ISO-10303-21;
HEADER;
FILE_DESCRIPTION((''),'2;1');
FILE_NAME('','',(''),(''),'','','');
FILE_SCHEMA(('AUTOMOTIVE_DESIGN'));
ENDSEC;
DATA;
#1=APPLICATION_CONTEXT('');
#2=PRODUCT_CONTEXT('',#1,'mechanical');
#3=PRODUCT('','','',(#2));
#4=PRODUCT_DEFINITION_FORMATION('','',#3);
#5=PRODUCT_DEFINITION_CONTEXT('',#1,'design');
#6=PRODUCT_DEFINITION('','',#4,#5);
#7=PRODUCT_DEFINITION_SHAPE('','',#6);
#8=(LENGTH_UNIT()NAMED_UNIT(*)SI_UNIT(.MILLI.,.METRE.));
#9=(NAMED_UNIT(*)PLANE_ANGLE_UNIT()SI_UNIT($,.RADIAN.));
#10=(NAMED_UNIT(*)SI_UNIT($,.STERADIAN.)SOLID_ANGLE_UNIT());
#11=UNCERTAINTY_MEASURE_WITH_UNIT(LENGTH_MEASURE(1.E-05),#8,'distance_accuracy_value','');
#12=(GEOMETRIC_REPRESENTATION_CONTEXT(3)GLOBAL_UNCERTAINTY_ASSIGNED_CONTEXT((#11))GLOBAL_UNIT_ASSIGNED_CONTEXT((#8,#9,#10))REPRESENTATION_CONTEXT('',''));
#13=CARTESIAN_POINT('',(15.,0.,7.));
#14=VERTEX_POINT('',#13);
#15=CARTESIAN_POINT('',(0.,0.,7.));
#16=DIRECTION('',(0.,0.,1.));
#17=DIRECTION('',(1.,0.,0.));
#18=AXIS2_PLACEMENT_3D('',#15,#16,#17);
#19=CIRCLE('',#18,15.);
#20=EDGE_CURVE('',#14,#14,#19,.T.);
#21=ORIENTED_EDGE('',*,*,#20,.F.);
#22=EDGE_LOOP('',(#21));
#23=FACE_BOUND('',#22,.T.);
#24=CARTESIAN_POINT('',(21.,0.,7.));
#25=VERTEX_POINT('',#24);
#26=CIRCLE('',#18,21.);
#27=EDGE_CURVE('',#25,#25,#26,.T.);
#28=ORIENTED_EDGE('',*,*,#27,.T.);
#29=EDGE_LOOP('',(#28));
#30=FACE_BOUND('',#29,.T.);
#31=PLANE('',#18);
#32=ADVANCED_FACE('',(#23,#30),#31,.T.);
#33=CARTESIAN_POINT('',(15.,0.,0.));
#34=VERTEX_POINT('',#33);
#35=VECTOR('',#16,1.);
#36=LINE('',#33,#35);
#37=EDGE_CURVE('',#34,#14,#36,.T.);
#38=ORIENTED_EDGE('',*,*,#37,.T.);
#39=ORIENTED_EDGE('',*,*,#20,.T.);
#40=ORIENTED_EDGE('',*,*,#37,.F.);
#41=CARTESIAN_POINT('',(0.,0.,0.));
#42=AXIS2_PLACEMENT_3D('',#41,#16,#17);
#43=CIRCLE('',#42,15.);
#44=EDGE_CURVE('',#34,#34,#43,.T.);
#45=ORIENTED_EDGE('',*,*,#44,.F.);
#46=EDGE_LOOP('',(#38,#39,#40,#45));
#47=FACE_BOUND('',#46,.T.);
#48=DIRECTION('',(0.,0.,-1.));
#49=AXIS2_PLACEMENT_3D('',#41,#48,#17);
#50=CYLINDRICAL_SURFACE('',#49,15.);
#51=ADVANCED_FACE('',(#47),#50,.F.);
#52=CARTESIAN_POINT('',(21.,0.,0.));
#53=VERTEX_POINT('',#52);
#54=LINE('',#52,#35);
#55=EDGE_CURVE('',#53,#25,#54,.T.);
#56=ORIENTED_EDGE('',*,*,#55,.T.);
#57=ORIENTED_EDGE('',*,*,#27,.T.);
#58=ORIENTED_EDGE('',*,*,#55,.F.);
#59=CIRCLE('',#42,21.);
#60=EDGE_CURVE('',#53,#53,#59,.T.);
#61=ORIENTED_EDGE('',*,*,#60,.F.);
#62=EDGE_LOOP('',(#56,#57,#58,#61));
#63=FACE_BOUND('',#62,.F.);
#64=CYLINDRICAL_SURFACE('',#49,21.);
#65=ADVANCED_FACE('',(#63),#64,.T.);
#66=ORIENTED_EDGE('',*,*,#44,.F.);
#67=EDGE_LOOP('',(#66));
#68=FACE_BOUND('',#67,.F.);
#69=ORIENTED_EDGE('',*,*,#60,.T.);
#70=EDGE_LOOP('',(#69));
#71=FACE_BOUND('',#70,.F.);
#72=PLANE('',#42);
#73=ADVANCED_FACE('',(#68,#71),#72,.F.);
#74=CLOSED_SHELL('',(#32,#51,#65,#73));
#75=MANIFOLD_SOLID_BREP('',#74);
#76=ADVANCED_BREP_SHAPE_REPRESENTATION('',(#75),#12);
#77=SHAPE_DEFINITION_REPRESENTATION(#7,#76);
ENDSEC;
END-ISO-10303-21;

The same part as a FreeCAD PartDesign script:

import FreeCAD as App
import Part
import Sketcher

V = App.Vector

doc = App.newDocument("Part")
params = doc.addObject("Spreadsheet::Sheet", "Params")
for row, (alias, value) in enumerate([
    ("sketch1_diameter", "42 mm"),
    ("sketch1_diameter2", "30 mm"),
    ("pad1_length", "7 mm"),
], start=1):
    params.set(f"A{row}", alias)
    params.set(f"B{row}", "=" + value)
    params.setAlias(f"B{row}", alias)

body = doc.addObject("PartDesign::Body", "Body")

# Sketch on XY plane
sketch1 = body.newObject("Sketcher::SketchObject", "Sketch")
sketch1.AttachmentSupport = (doc.getObject("XY_Plane"), [""])
sketch1.MapMode = "FlatFace"
sketch1.addGeometry([
    Part.Circle(V(0, 0, 0), V(0, 0, 1), 21),
    Part.Circle(V(0, 0, 0), V(0, 0, 1), 15),
], False)
sketch1.addConstraint([
    Sketcher.Constraint("Coincident", 0, 3, -1, 1),
    Sketcher.Constraint("Coincident", 1, 3, -1, 1),
    Sketcher.Constraint("Diameter", 0, 42.0),
    Sketcher.Constraint("Diameter", 1, 30.0),
])
sketch1.setExpression("Constraints[2]", "Params.sketch1_diameter")
sketch1.setExpression("Constraints[3]", "Params.sketch1_diameter2")
pad1 = body.newObject("PartDesign::Pad", "Pad")
pad1.Profile = sketch1
pad1.setExpression("Length", "Params.pad1_length")

doc.recompute()
